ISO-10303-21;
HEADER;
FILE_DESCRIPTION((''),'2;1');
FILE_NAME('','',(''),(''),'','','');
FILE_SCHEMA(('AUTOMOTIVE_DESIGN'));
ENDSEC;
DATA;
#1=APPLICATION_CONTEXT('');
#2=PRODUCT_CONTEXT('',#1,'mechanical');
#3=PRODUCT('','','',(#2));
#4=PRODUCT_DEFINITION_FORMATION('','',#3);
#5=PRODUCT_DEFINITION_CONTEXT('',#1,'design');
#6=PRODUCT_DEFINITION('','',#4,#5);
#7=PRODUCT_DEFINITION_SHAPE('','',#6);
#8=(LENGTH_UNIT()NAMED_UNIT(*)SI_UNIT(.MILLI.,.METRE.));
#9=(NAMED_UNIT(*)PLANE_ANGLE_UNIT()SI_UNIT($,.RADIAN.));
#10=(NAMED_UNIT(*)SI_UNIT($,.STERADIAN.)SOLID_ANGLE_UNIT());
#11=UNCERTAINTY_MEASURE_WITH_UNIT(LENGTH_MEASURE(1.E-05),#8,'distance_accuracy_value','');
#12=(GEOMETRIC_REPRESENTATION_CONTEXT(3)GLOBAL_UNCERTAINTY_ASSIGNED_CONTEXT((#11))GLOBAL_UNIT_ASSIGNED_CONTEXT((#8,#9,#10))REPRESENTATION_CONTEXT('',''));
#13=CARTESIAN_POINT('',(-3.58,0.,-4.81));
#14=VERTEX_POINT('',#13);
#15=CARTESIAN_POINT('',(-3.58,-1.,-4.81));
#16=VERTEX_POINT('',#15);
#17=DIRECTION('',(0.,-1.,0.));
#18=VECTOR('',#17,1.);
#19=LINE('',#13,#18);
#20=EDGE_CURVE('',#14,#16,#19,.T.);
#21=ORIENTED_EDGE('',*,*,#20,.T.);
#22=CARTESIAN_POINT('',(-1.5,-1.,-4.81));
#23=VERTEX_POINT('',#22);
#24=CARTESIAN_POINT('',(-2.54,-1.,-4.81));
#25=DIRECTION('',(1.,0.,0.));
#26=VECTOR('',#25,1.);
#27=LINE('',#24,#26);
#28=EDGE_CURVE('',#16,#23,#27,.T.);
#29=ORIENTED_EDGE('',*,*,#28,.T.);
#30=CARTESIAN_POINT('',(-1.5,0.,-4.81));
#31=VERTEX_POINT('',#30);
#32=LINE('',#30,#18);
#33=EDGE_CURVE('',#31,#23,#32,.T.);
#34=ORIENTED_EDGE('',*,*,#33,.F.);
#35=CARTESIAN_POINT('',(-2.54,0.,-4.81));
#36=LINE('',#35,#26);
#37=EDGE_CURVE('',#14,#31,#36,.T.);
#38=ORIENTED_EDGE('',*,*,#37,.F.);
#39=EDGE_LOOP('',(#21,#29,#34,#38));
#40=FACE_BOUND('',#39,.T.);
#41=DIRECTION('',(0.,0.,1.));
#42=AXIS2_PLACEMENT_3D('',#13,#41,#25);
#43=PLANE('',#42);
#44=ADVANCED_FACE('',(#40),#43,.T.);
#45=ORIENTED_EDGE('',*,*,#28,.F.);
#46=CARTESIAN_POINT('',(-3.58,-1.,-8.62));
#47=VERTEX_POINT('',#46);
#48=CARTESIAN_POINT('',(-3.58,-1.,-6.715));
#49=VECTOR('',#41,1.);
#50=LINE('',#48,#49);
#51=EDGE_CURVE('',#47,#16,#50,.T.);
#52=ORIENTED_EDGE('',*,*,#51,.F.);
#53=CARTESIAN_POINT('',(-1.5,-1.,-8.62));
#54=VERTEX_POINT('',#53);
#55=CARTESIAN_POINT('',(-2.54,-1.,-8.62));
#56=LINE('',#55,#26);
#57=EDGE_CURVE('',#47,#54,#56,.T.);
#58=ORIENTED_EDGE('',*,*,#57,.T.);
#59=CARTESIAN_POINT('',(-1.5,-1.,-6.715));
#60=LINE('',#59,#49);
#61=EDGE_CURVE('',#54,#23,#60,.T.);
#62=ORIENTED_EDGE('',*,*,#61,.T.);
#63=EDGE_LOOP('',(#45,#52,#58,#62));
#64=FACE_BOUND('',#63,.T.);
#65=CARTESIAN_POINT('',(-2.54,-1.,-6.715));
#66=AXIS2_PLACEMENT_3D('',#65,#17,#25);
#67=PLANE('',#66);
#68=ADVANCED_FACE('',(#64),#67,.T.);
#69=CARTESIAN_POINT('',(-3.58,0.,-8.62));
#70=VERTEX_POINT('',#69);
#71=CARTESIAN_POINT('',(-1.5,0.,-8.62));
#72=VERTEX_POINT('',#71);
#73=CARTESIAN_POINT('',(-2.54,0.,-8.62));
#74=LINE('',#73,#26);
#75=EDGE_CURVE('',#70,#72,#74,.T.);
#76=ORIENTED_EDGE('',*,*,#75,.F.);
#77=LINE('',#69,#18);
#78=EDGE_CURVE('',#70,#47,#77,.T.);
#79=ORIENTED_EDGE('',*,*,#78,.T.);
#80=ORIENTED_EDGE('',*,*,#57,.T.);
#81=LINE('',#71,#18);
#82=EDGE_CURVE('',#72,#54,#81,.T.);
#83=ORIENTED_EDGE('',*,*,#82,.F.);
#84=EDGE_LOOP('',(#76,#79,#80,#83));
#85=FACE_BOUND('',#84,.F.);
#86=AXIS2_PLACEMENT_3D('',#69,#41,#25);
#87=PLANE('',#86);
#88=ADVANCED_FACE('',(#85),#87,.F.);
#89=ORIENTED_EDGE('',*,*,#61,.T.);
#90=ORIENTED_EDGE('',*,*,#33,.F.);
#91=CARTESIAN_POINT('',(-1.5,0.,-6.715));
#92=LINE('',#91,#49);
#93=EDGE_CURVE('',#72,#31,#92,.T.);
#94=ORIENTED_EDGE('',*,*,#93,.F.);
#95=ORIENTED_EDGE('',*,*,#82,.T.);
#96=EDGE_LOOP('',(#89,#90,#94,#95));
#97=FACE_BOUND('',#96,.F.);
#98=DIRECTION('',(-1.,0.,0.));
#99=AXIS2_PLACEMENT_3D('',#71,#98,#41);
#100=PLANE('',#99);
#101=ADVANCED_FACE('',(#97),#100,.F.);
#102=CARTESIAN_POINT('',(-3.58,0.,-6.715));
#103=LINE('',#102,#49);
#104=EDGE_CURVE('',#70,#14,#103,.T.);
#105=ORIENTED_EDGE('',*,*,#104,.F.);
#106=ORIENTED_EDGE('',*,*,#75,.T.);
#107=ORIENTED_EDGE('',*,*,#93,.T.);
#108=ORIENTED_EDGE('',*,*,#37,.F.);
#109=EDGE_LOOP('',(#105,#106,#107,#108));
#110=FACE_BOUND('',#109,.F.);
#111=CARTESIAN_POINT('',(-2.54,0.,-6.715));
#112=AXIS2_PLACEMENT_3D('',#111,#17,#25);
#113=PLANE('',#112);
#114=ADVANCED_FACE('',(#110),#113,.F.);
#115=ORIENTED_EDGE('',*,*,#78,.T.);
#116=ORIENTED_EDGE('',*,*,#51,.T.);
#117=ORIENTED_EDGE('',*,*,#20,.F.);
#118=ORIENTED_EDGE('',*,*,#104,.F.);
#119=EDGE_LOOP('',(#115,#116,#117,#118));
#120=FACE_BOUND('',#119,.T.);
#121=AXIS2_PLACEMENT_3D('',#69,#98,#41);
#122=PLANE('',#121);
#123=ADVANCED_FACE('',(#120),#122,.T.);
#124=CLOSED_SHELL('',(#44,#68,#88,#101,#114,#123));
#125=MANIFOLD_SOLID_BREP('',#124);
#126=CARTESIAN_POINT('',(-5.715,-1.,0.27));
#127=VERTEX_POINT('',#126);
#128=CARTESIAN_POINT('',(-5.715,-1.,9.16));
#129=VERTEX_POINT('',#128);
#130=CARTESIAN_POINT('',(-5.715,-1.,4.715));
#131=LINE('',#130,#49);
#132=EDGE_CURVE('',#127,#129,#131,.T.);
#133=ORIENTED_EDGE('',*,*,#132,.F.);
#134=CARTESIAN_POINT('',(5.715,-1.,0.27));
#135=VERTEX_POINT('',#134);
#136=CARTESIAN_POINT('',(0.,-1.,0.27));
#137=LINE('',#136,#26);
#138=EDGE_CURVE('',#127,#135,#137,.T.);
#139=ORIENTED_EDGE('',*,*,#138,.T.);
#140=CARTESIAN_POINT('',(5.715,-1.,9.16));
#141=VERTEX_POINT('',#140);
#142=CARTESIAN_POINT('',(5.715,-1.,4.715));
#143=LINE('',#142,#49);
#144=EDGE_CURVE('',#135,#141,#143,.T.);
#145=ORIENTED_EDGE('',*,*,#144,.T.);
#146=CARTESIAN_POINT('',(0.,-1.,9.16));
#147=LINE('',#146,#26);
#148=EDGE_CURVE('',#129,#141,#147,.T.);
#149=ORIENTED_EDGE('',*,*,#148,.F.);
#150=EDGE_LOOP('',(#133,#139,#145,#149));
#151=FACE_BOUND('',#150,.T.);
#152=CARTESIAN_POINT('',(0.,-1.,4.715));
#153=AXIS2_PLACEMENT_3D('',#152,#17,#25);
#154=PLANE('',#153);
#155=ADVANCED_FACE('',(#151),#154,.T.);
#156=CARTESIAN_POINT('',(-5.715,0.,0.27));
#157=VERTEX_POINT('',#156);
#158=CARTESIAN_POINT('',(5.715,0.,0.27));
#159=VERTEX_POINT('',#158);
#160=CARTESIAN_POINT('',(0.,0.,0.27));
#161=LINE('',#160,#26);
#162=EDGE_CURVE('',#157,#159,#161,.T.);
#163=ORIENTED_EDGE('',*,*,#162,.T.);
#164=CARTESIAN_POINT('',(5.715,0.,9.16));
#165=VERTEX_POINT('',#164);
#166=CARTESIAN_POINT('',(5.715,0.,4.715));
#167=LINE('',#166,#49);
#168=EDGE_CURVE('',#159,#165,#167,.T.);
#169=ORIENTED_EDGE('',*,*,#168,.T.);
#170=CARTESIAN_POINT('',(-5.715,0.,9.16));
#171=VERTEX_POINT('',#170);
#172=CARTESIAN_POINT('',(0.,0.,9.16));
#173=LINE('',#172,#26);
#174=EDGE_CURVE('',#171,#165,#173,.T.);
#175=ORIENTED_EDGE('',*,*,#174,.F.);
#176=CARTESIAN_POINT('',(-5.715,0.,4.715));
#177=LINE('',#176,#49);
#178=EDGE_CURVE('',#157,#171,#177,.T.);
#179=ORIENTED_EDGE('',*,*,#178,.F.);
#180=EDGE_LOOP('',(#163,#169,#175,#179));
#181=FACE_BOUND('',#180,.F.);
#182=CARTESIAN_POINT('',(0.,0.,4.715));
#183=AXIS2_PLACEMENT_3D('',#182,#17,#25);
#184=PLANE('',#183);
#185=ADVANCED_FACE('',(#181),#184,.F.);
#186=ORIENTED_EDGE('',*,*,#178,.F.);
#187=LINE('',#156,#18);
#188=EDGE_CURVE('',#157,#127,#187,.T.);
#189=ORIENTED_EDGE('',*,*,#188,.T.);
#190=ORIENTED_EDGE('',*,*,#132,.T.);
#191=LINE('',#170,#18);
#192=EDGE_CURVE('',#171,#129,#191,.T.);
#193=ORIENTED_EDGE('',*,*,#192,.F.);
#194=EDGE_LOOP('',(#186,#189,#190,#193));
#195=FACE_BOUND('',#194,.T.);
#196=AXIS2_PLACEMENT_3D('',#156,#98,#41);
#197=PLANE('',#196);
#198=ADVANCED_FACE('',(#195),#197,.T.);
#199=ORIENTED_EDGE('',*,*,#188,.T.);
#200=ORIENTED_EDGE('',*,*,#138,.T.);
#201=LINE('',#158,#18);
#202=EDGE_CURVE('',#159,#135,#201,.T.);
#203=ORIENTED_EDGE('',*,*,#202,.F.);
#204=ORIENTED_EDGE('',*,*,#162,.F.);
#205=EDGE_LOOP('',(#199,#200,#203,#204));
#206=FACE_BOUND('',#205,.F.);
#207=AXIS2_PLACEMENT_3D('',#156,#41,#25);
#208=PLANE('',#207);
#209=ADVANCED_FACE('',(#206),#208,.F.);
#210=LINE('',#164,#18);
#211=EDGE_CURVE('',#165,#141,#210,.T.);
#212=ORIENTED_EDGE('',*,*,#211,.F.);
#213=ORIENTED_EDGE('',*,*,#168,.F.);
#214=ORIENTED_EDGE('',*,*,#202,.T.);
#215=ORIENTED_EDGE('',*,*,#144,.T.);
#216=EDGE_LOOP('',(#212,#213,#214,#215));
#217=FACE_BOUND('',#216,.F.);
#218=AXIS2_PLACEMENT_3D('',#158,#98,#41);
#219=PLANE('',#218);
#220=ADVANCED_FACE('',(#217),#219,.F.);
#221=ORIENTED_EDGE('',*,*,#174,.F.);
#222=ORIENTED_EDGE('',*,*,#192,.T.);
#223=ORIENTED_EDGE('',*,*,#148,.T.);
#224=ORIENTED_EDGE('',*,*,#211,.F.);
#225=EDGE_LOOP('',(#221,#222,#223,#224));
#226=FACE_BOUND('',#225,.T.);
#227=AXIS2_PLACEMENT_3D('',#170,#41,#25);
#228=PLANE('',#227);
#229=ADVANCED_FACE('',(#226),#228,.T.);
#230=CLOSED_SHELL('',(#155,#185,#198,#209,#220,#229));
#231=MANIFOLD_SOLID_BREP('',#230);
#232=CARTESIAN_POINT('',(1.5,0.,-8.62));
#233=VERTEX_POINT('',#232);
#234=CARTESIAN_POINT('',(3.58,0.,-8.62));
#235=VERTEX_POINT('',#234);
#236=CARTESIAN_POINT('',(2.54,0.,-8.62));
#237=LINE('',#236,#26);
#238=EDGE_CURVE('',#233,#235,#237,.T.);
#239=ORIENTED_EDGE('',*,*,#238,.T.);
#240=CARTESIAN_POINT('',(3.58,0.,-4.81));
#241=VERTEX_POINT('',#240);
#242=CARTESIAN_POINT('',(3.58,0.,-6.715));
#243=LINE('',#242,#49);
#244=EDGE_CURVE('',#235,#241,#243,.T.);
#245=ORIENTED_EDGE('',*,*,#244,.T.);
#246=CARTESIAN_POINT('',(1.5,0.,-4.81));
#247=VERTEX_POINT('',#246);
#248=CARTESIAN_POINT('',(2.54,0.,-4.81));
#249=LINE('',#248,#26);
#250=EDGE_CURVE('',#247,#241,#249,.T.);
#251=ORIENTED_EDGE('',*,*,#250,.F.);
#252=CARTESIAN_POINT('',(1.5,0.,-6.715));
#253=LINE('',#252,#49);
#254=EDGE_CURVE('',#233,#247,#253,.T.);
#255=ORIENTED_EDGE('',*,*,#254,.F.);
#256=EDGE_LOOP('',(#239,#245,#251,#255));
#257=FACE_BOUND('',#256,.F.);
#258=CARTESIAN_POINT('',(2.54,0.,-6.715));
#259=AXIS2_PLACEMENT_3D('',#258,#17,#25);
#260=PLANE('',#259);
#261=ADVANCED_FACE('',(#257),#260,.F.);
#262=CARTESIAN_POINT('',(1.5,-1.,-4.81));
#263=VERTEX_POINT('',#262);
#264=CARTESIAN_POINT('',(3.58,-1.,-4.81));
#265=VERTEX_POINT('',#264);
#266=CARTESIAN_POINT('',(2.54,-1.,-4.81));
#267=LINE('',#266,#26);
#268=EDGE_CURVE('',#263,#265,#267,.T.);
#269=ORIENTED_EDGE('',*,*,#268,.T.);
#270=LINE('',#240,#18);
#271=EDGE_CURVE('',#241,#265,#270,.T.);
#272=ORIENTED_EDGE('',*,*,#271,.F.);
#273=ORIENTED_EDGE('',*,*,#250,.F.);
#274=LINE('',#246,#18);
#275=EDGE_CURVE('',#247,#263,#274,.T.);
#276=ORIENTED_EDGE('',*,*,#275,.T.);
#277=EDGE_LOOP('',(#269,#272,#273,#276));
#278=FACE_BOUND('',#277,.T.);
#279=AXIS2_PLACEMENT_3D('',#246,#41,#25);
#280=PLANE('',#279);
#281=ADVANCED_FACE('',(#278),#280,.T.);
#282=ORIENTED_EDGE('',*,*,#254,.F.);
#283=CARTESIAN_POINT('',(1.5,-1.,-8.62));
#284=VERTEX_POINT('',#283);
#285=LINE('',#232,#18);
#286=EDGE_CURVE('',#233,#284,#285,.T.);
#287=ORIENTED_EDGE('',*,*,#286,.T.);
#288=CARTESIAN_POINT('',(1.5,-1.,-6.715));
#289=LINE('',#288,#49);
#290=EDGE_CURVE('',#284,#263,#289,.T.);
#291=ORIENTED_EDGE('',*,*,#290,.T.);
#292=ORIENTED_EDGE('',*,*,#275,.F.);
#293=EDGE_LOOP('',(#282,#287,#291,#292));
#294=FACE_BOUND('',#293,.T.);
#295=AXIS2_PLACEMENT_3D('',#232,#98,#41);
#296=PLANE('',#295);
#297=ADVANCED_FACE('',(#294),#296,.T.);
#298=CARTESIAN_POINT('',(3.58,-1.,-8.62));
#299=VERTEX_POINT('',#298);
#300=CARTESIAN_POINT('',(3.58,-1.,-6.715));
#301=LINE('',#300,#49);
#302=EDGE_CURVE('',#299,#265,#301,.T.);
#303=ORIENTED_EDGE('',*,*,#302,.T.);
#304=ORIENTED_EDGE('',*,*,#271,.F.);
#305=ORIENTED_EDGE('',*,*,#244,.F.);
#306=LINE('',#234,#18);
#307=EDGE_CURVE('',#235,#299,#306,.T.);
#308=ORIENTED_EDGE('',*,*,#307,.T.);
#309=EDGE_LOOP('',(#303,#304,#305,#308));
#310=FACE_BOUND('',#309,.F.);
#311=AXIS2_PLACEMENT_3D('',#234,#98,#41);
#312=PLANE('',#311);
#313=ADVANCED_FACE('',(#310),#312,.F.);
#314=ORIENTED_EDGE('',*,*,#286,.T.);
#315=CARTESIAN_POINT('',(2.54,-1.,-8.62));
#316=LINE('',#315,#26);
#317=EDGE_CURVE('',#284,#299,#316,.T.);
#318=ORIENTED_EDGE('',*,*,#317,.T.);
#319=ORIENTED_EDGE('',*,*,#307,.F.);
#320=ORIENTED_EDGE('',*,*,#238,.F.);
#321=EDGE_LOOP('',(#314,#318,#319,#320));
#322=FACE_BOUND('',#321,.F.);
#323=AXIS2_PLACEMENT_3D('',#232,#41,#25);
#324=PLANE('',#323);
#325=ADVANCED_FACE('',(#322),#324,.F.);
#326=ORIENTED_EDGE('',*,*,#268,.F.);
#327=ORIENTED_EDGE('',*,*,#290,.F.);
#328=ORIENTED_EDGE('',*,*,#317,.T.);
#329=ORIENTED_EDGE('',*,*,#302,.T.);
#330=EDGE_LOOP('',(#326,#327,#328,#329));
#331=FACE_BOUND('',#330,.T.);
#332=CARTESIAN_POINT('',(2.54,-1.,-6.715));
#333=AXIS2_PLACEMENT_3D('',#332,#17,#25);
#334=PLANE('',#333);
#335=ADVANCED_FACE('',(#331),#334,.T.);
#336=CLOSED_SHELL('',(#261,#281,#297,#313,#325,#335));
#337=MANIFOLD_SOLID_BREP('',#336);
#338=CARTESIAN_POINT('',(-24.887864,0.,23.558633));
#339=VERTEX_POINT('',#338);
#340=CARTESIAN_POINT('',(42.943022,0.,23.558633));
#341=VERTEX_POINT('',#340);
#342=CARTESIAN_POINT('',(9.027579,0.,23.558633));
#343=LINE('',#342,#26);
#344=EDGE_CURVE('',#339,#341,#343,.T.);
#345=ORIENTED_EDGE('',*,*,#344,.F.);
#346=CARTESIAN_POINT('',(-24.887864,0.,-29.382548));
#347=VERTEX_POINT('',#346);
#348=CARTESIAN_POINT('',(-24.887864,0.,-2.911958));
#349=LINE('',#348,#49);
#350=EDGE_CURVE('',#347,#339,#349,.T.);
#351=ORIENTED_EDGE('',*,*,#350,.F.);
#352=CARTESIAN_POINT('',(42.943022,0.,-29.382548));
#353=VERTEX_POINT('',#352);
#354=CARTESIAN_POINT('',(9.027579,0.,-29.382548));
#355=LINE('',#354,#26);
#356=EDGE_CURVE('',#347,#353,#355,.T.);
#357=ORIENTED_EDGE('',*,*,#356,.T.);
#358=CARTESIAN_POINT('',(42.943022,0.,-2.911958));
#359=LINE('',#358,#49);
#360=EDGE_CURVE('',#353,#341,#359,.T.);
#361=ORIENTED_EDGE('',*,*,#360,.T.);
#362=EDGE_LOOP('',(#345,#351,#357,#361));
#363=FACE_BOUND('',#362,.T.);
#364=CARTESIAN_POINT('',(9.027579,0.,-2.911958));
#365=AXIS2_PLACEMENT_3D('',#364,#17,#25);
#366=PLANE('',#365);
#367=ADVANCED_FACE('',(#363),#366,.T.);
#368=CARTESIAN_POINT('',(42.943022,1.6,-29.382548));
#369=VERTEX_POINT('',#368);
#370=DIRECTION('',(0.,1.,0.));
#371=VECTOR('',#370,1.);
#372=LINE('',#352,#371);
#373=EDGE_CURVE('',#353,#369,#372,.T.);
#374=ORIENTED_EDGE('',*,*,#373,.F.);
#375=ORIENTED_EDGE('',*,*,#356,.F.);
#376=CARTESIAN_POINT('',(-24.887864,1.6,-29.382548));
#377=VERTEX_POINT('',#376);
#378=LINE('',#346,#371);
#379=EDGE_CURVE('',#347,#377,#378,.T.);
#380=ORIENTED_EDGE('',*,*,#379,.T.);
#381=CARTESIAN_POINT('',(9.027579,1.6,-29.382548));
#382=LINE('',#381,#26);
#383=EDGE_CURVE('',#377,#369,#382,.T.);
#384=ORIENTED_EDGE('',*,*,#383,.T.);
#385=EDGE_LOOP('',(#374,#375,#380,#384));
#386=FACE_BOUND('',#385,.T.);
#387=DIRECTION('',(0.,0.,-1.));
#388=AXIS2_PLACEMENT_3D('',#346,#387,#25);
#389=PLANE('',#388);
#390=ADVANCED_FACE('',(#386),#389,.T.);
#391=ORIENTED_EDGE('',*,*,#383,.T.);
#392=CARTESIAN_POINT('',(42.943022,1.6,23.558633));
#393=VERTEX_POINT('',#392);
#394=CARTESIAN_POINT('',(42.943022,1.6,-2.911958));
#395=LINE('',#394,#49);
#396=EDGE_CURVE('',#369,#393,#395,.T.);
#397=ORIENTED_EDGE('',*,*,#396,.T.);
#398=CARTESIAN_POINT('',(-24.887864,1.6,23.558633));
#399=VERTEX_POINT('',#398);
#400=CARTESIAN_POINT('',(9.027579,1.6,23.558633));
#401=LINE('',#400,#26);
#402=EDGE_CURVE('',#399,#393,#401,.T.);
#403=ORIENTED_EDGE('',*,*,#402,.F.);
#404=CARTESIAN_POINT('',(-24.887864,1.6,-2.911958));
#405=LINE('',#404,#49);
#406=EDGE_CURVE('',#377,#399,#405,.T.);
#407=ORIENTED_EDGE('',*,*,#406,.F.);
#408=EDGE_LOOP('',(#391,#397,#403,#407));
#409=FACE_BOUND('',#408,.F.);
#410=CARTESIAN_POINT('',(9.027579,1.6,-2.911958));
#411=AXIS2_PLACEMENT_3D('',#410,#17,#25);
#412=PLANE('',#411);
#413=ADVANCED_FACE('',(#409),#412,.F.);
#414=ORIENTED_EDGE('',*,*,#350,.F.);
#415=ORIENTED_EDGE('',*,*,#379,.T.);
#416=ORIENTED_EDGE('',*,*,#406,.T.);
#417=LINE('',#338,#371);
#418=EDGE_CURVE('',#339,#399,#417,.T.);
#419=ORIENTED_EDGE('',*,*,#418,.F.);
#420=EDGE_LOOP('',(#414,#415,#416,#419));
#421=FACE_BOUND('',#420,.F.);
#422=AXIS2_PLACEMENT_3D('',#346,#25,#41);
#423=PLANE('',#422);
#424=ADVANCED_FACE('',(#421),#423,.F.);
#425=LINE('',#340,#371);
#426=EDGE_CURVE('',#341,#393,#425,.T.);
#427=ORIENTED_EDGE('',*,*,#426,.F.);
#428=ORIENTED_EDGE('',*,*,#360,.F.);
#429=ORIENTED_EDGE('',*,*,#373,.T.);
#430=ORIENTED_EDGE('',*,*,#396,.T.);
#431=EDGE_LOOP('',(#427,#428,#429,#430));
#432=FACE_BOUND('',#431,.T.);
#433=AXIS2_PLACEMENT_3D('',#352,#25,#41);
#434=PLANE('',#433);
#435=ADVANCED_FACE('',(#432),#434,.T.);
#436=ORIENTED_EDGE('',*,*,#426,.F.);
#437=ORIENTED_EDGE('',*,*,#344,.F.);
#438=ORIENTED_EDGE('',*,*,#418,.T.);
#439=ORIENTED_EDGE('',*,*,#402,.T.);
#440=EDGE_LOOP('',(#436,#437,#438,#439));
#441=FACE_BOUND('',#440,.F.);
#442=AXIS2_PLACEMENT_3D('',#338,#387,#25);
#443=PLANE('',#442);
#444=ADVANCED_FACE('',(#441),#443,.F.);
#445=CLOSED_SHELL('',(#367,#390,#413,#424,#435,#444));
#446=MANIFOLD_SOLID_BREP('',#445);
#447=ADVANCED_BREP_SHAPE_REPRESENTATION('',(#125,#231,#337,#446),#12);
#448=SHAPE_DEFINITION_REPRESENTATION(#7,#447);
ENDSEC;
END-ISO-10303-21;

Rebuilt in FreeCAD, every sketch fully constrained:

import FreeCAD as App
import Part
import Sketcher
from FreeCAD import Vector
Q = App.Units.Quantity


def add_polygon(sketch, points):
    """Adds a closed chain of lines whose ends are joined by coincident constraints."""
    first, n = sketch.GeometryCount, len(points)
    for a, b in zip(points, points[1:] + points[:1]):
        sketch.addGeometry(Part.LineSegment(App.Vector(*a, 0), App.Vector(*b, 0)), False)
    for i in range(n):
        sketch.addConstraint(Sketcher.Constraint("Coincident", first + i, 2, first + (i + 1) % n, 1))

doc = App.newDocument("Part")
body = doc.addObject("PartDesign::Body", "Body")

# Sketch on XZ plane
sketch1 = body.newObject("Sketcher::SketchObject", "Sketch")
sketch1.AttachmentSupport = (doc.getObject("XZ_Plane"), [""])
sketch1.MapMode = "FlatFace"
add_polygon(sketch1, [(-25, 24), (-25, -29), (43, -29), (43, 24)])  # lines 0-3
sketch1.addConstraint(Sketcher.Constraint("Vertical", 0))
sketch1.addConstraint(Sketcher.Constraint("Horizontal", 1))
sketch1.addConstraint(Sketcher.Constraint("Vertical", 2))
sketch1.addConstraint(Sketcher.Constraint("Horizontal", 3))
sketch1.addConstraint(Sketcher.Constraint("DistanceY", 0, 2, 0, 1, Q("52.941181 mm")))
sketch1.addConstraint(Sketcher.Constraint("DistanceX", 1, 1, 1, 2, Q("67.830887 mm")))
sketch1.addConstraint(Sketcher.Constraint("DistanceY", 0, 2, -1, 1, Q("29.382548 mm")))
sketch1.addConstraint(Sketcher.Constraint("DistanceX", 0, 2, -1, 1, Q("24.887864 mm")))
pad1 = body.newObject("PartDesign::Pad", "Pad")
pad1.Profile = sketch1
pad1.Length = 1.6
pad1.Reversed = True
body2 = doc.addObject("PartDesign::Body", "Body001")
body2.AllowCompound = True

# Sketch on XZ plane
sketch2 = body2.newObject("Sketcher::SketchObject", "Sketch001")
sketch2.AttachmentSupport = (doc.getObject("XZ_Plane001"), [""])
sketch2.MapMode = "FlatFace"
add_polygon(sketch2, [(-3.6, -4.8), (-3.6, -8.6), (-1.5, -8.6), (-1.5, -4.8)])  # lines 0-3
add_polygon(sketch2, [(-5.7, 9.2), (-5.7, 0.3), (5.7, 0.3), (5.7, 9.2)])  # lines 4-7
add_polygon(sketch2, [(1.5, -4.8), (1.5, -8.6), (3.6, -8.6), (3.6, -4.8)])  # lines 8-11
sketch2.addConstraint(Sketcher.Constraint("Vertical", 0))
sketch2.addConstraint(Sketcher.Constraint("Horizontal", 1))
sketch2.addConstraint(Sketcher.Constraint("Vertical", 2))
sketch2.addConstraint(Sketcher.Constraint("Horizontal", 3))
sketch2.addConstraint(Sketcher.Constraint("Vertical", 4))
sketch2.addConstraint(Sketcher.Constraint("Horizontal", 5))
sketch2.addConstraint(Sketcher.Constraint("Vertical", 6))
sketch2.addConstraint(Sketcher.Constraint("Horizontal", 7))
sketch2.addConstraint(Sketcher.Constraint("Vertical", 8))
sketch2.addConstraint(Sketcher.Constraint("Horizontal", 9))
sketch2.addConstraint(Sketcher.Constraint("Vertical", 10))
sketch2.addConstraint(Sketcher.Constraint("Horizontal", 11))
sketch2.addConstraint(Sketcher.Constraint("Symmetric", 1, 2, 8, 2, -2))
sketch2.addConstraint(Sketcher.Constraint("Symmetric", 3, 2, 10, 2, -2))
sketch2.addConstraint(Sketcher.Constraint("DistanceX", 5, 1, 5, 2, Q("0.45 in")))
sketch2.addConstraint(Sketcher.Constraint("DistanceY", 0, 2, 0, 1, Q("0.15 in")))
sketch2.addConstraint(Sketcher.Constraint("DistanceY", 4, 2, 4, 1, Q("0.35 in")))
sketch2.addConstraint(Sketcher.Constraint("DistanceY", 3, 2, 4, 2, Q("0.2 in")))
sketch2.addConstraint(Sketcher.Constraint("DistanceX", 0, 2, 8, 2, Q("0.2 in")))
sketch2.addConstraint(Sketcher.Constraint("DistanceX", 4, 2, -1, 1, Q("0.225 in")))
sketch2.addConstraint(Sketcher.Constraint("DistanceX", 1, 1, 1, 2, Q("2.08 mm")))
sketch2.addConstraint(Sketcher.Constraint("DistanceY", 0, 2, -1, 1, Q("8.62 mm")))
pad2 = body2.newObject("PartDesign::Pad", "Pad001")
pad2.Profile = sketch2
pad2.Length = 1

doc.recompute()
